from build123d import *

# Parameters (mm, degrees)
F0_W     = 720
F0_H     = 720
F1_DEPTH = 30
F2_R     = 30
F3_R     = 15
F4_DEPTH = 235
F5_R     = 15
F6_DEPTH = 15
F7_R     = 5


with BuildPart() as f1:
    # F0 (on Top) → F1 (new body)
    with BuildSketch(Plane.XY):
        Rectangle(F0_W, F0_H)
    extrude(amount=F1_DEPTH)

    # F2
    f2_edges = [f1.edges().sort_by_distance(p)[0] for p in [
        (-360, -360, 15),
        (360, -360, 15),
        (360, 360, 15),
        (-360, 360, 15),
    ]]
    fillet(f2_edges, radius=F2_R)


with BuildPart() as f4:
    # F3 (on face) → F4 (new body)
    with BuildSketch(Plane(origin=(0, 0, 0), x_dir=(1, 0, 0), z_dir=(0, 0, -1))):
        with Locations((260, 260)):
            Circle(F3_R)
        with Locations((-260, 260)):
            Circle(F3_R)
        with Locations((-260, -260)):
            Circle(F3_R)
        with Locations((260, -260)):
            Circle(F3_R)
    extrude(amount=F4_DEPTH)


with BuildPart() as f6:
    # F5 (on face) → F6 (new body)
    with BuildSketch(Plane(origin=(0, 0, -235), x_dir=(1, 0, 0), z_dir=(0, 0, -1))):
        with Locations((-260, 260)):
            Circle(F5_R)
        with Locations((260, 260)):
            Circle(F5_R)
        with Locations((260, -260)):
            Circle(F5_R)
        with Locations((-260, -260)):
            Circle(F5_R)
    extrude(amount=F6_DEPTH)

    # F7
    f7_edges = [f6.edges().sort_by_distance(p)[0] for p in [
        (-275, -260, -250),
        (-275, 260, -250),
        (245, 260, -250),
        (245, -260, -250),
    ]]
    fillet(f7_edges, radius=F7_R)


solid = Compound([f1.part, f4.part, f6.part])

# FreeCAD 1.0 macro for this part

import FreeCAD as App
import Part
import Sketcher

V = App.Vector
Q = App.Units.Quantity


def edges_at(feature, points):
    """Names of the edges that pass closest to the given points."""
    edges = feature.Shape.Edges
    near = lambda p: min(range(len(edges)), key=lambda i: edges[i].distToShape(Part.Vertex(*p))[0])
    return sorted({f"Edge{near(p) + 1}" for p in points})

doc = App.newDocument("Part")
body = doc.addObject("PartDesign::Body", "Body")

# Sketch on XY plane
sketch1 = body.newObject("Sketcher::SketchObject", "Sketch")
sketch1.AttachmentSupport = (doc.getObject("XY_Plane"), [""])
sketch1.MapMode = "FlatFace"
sketch1.addGeometry(Part.LineSegment(V(-360, 360, 0), V(-360, -360, 0)), False)
sketch1.addGeometry(Part.LineSegment(V(-360, -360, 0), V(360, -360, 0)), False)
sketch1.addGeometry(Part.LineSegment(V(360, -360, 0), V(360, 360, 0)), False)
sketch1.addGeometry(Part.LineSegment(V(360, 360, 0), V(-360, 360, 0)), False)
sketch1.addConstraint(Sketcher.Constraint("Coincident", 0, 2, 1, 1))
sketch1.addConstraint(Sketcher.Constraint("Coincident", 1, 2, 2, 1))
sketch1.addConstraint(Sketcher.Constraint("Coincident", 2, 2, 3, 1))
sketch1.addConstraint(Sketcher.Constraint("Coincident", 3, 2, 0, 1))
sketch1.addConstraint(Sketcher.Constraint("Vertical", 0))
sketch1.addConstraint(Sketcher.Constraint("Horizontal", 1))
sketch1.addConstraint(Sketcher.Constraint("Vertical", 2))
sketch1.addConstraint(Sketcher.Constraint("Horizontal", 3))
sketch1.addConstraint(Sketcher.Constraint("Symmetric", 0, 2, 2, 2, -1, 1))
sketch1.addConstraint(Sketcher.Constraint("Equal", 3, 0))
sketch1.addConstraint(Sketcher.Constraint("DistanceX", 1, 1, 1, 2, Q("720 mm")))
pad1 = body.newObject("PartDesign::Pad", "Pad")
pad1.Profile = sketch1
pad1.Length = 30
doc.recompute()

fillet = body.newObject("PartDesign::Fillet", "Fillet")
fillet.Base = (pad1, edges_at(pad1, [
    (-360, -360, 15),
    (360, -360, 15),
    (360, 360, 15),
    (-360, 360, 15),
]))
fillet.Radius = 30
body2 = doc.addObject("PartDesign::Body", "Body001")
body2.AllowCompound = True

# Sketch on XY plane
sketch2 = body2.newObject("Sketcher::SketchObject", "Sketch001")
sketch2.AttachmentSupport = (doc.getObject("XY_Plane001"), [""])
sketch2.MapMode = "FlatFace"
sketch2.addGeometry(Part.Circle(V(260, -260, 0), V(0, 0, 1), 15), False)
sketch2.addGeometry(Part.Circle(V(-260, -260, 0), V(0, 0, 1), 15), False)
sketch2.addGeometry(Part.Circle(V(-260, 260, 0), V(0, 0, 1), 15), False)
sketch2.addGeometry(Part.Circle(V(260, 260, 0), V(0, 0, 1), 15), False)
sketch2.addConstraint(Sketcher.Constraint("Equal", 0, 1))
sketch2.addConstraint(Sketcher.Constraint("Equal", 1, 2))
sketch2.addConstraint(Sketcher.Constraint("Equal", 2, 3))
sketch2.addConstraint(Sketcher.Constraint("Symmetric", 0, 3, 2, 3, -1, 1))
sketch2.addConstraint(Sketcher.Constraint("Symmetric", 1, 3, 3, 3, -1, 1))
sketch2.addConstraint(Sketcher.Constraint("Symmetric", 0, 3, 1, 3, -2))
sketch2.addConstraint(Sketcher.Constraint("Diameter", 0, Q("30 mm")))
sketch2.addConstraint(Sketcher.Constraint("DistanceX", -1, 1, 0, 3, Q("260 mm")))
sketch2.addConstraint(Sketcher.Constraint("DistanceY", 0, 3, -1, 1, Q("260 mm")))
pad2 = body2.newObject("PartDesign::Pad", "Pad001")
pad2.Profile = sketch2
pad2.Length = 235
pad2.Reversed = True
body3 = doc.addObject("PartDesign::Body", "Body002")
body3.AllowCompound = True

# Sketch on XY plane
sketch3 = body3.newObject("Sketcher::SketchObject", "Sketch002")
sketch3.AttachmentSupport = (doc.getObject("XY_Plane002"), [""])
sketch3.MapMode = "FlatFace"
sketch3.AttachmentOffset = App.Placement(V(0, 0, -235), App.Rotation())
sketch3.addGeometry(Part.Circle(V(-260, -260, 0), V(0, 0, 1), 15), False)
sketch3.addGeometry(Part.Circle(V(260, -260, 0), V(0, 0, 1), 15), False)
sketch3.addGeometry(Part.Circle(V(260, 260, 0), V(0, 0, 1), 15), False)
sketch3.addGeometry(Part.Circle(V(-260, 260, 0), V(0, 0, 1), 15), False)
sketch3.addConstraint(Sketcher.Constraint("Equal", 0, 1))
sketch3.addConstraint(Sketcher.Constraint("Equal", 1, 2))
sketch3.addConstraint(Sketcher.Constraint("Equal", 2, 3))
sketch3.addConstraint(Sketcher.Constraint("Symmetric", 0, 3, 2, 3, -1, 1))
sketch3.addConstraint(Sketcher.Constraint("Symmetric", 1, 3, 3, 3, -1, 1))
sketch3.addConstraint(Sketcher.Constraint("Symmetric", 0, 3, 1, 3, -2))
sketch3.addConstraint(Sketcher.Constraint("Diameter", 0, Q("30 mm")))
sketch3.addConstraint(Sketcher.Constraint("DistanceX", 0, 3, -1, 1, Q("260 mm")))
sketch3.addConstraint(Sketcher.Constraint("DistanceY", 0, 3, -1, 1, Q("260 mm")))
pad3 = body3.newObject("PartDesign::Pad", "Pad002")
pad3.Profile = sketch3
pad3.Length = 15
pad3.Reversed = True
doc.recompute()

fillet2 = body3.newObject("PartDesign::Fillet", "Fillet001")
fillet2.Base = (pad3, edges_at(pad3, [
    (-275, -260, -250),
    (-275, 260, -250),
    (245, 260, -250),
    (245, -260, -250),
]))
fillet2.Radius = 5

doc.recompute()
